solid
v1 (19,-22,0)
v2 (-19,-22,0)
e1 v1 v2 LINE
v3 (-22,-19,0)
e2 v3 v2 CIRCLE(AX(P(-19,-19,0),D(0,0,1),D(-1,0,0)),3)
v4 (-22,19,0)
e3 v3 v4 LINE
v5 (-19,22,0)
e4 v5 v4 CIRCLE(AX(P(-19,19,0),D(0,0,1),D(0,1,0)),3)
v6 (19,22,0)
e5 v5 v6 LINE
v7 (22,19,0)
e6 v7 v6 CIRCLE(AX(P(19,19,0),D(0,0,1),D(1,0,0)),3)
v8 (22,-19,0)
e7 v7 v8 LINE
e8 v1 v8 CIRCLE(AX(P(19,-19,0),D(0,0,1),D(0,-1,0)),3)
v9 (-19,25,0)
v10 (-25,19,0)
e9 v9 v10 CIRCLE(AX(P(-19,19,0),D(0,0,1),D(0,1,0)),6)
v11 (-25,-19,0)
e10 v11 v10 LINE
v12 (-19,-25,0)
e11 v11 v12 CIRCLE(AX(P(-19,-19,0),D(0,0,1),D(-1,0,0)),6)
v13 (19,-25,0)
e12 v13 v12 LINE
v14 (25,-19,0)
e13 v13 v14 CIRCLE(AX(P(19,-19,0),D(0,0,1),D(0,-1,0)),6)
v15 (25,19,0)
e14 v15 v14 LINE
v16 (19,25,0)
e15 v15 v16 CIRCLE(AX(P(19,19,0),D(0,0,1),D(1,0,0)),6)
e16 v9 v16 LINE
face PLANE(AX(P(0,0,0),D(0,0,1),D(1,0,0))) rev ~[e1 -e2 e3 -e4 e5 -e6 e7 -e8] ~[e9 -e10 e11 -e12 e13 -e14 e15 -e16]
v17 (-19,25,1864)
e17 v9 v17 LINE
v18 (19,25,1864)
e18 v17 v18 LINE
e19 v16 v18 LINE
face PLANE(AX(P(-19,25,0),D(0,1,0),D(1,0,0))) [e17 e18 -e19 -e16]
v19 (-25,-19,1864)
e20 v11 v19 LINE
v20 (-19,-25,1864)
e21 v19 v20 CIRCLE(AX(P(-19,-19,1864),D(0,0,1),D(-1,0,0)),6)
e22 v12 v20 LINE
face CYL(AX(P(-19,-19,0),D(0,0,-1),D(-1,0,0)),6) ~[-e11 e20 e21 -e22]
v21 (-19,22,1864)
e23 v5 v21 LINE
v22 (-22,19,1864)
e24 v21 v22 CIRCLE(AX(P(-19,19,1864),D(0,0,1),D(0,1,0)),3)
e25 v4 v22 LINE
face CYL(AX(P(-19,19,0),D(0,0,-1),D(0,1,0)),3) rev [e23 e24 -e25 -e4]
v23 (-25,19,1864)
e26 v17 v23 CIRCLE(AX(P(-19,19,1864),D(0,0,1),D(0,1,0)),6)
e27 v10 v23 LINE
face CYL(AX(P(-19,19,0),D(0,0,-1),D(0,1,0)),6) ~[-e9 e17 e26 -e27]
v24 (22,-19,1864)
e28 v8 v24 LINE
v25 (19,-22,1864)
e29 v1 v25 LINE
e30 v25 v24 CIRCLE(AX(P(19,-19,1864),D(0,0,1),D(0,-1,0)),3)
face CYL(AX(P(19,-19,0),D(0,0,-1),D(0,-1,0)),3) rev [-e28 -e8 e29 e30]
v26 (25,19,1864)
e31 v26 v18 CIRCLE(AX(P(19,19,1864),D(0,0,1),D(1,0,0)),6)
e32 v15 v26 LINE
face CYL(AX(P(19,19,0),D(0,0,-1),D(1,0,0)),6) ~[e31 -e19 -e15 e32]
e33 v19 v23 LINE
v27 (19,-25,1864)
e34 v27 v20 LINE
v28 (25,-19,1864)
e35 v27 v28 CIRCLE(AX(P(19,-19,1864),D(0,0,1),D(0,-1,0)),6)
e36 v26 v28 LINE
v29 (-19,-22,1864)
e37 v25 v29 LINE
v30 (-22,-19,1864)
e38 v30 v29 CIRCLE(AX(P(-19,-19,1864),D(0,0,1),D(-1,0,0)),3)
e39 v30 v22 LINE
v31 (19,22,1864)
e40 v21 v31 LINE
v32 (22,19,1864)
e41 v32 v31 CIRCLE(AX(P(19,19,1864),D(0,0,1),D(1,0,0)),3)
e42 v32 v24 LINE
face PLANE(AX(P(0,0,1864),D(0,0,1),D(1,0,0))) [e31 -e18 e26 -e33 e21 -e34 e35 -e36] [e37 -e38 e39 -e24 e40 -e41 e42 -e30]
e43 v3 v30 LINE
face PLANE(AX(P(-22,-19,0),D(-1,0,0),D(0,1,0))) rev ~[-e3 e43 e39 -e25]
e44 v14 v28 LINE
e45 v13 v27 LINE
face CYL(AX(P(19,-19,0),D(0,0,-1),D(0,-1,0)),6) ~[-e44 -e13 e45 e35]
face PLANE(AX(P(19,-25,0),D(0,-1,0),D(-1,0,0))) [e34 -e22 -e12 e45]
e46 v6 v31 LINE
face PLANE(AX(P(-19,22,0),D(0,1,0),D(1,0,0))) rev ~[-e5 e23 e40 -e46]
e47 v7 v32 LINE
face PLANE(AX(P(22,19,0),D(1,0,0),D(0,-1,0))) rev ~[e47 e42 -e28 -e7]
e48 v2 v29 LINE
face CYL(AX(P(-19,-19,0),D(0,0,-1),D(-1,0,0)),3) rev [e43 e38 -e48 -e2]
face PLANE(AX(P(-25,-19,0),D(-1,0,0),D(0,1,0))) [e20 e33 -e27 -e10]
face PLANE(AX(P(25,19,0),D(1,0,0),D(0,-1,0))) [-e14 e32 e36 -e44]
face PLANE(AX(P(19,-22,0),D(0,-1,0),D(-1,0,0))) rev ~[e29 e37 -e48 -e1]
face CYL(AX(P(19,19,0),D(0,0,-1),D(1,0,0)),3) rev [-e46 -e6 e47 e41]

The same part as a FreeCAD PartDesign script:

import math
import FreeCAD as App
import Part
import Sketcher

V = App.Vector

doc = App.newDocument("Part")
body = doc.addObject("PartDesign::Body", "Body")

# Sketch on XY plane
sketch1 = body.newObject("Sketcher::SketchObject", "Sketch")
sketch1.AttachmentSupport = (doc.getObject("XY_Plane"), [""])
sketch1.MapMode = "FlatFace"
sketch1.addGeometry([
    Part.LineSegment(V(-25, 19, 0), V(-25, -19, 0)),  # 0
    Part.ArcOfCircle(Part.Circle(V(-19, -19, 0), V(0, 0, 1), 6), math.radians(180), math.radians(270)),  # 1
    Part.LineSegment(V(-19, -25, 0), V(19, -25, 0)),  # 2
    Part.ArcOfCircle(Part.Circle(V(19, -19, 0), V(0, 0, 1), 6), math.radians(-90), math.radians(0)),  # 3
    Part.LineSegment(V(25, -19, 0), V(25, 19, 0)),  # 4
    Part.ArcOfCircle(Part.Circle(V(19, 19, 0), V(0, 0, 1), 6), math.radians(0), math.radians(90)),  # 5
    Part.LineSegment(V(19, 25, 0), V(-19, 25, 0)),  # 6
    Part.ArcOfCircle(Part.Circle(V(-19, 19, 0), V(0, 0, 1), 6), math.radians(90), math.radians(180)),  # 7
    Part.ArcOfCircle(Part.Circle(V(-19, 19, 0), V(0, 0, 1), 3), math.radians(90), math.radians(180)),  # 8
    Part.LineSegment(V(-19, 22, 0), V(19, 22, 0)),  # 9
    Part.ArcOfCircle(Part.Circle(V(19, 19, 0), V(0, 0, 1), 3), math.radians(0), math.radians(90)),  # 10
    Part.LineSegment(V(22, 19, 0), V(22, -19, 0)),  # 11
    Part.ArcOfCircle(Part.Circle(V(19, -19, 0), V(0, 0, 1), 3), math.radians(-90), math.radians(0)),  # 12
    Part.LineSegment(V(19, -22, 0), V(-19, -22, 0)),  # 13
    Part.ArcOfCircle(Part.Circle(V(-19, -19, 0), V(0, 0, 1), 3), math.radians(180), math.radians(270)),  # 14
    Part.LineSegment(V(-22, -19, 0), V(-22, 19, 0)),  # 15
], False)
sketch1.addConstraint([
    Sketcher.Constraint("Tangent", 0, 2, 1, 1),
    Sketcher.Constraint("Tangent", 1, 2, 2, 1),
    Sketcher.Constraint("Tangent", 2, 2, 3, 1),
    Sketcher.Constraint("Tangent", 3, 2, 4, 1),
    Sketcher.Constraint("Tangent", 4, 2, 5, 1),
    Sketcher.Constraint("Tangent", 5, 2, 6, 1),
    Sketcher.Constraint("Tangent", 6, 2, 7, 1),
    Sketcher.Constraint("Tangent", 7, 2, 0, 1),
    Sketcher.Constraint("Tangent", 8, 1, 9, 1),
    Sketcher.Constraint("Tangent", 9, 2, 10, 2),
    Sketcher.Constraint("Tangent", 10, 1, 11, 1),
    Sketcher.Constraint("Tangent", 11, 2, 12, 2),
    Sketcher.Constraint("Tangent", 12, 1, 13, 1),
    Sketcher.Constraint("Tangent", 13, 2, 14, 2),
    Sketcher.Constraint("Tangent", 14, 1, 15, 1),
    Sketcher.Constraint("Tangent", 15, 2, 8, 2),
    Sketcher.Constraint("Vertical", 0),
    Sketcher.Constraint("Horizontal", 2),
    Sketcher.Constraint("Vertical", 4),
    Sketcher.Constraint("Horizontal", 6),
    Sketcher.Constraint("Horizontal", 9),
    Sketcher.Constraint("Vertical", 11),
    Sketcher.Constraint("Horizontal", 13),
    Sketcher.Constraint("Vertical", 15),
    Sketcher.Constraint("Coincident", 8, 3, 7, 3),
    Sketcher.Constraint("Coincident", 10, 3, 5, 3),
    Sketcher.Constraint("Coincident", 12, 3, 3, 3),
    Sketcher.Constraint("Equal", 1, 3),
    Sketcher.Constraint("Equal", 3, 5),
    Sketcher.Constraint("Equal", 5, 7),
    Sketcher.Constraint("Equal", 12, 14),
    Sketcher.Constraint("Symmetric", 1, 3, 5, 3, -1, 1),
    Sketcher.Constraint("Equal", 13, 0),
    Sketcher.Constraint("Radius", 1, 6.0),
    Sketcher.Constraint("Radius", 8, 3.0),
    Sketcher.Constraint("DistanceX", 0, 2, -1, 1, 25.0),
])
pad1 = body.newObject("PartDesign::Pad", "Pad")
pad1.Profile = sketch1
pad1.Length = 1864

doc.recompute()
